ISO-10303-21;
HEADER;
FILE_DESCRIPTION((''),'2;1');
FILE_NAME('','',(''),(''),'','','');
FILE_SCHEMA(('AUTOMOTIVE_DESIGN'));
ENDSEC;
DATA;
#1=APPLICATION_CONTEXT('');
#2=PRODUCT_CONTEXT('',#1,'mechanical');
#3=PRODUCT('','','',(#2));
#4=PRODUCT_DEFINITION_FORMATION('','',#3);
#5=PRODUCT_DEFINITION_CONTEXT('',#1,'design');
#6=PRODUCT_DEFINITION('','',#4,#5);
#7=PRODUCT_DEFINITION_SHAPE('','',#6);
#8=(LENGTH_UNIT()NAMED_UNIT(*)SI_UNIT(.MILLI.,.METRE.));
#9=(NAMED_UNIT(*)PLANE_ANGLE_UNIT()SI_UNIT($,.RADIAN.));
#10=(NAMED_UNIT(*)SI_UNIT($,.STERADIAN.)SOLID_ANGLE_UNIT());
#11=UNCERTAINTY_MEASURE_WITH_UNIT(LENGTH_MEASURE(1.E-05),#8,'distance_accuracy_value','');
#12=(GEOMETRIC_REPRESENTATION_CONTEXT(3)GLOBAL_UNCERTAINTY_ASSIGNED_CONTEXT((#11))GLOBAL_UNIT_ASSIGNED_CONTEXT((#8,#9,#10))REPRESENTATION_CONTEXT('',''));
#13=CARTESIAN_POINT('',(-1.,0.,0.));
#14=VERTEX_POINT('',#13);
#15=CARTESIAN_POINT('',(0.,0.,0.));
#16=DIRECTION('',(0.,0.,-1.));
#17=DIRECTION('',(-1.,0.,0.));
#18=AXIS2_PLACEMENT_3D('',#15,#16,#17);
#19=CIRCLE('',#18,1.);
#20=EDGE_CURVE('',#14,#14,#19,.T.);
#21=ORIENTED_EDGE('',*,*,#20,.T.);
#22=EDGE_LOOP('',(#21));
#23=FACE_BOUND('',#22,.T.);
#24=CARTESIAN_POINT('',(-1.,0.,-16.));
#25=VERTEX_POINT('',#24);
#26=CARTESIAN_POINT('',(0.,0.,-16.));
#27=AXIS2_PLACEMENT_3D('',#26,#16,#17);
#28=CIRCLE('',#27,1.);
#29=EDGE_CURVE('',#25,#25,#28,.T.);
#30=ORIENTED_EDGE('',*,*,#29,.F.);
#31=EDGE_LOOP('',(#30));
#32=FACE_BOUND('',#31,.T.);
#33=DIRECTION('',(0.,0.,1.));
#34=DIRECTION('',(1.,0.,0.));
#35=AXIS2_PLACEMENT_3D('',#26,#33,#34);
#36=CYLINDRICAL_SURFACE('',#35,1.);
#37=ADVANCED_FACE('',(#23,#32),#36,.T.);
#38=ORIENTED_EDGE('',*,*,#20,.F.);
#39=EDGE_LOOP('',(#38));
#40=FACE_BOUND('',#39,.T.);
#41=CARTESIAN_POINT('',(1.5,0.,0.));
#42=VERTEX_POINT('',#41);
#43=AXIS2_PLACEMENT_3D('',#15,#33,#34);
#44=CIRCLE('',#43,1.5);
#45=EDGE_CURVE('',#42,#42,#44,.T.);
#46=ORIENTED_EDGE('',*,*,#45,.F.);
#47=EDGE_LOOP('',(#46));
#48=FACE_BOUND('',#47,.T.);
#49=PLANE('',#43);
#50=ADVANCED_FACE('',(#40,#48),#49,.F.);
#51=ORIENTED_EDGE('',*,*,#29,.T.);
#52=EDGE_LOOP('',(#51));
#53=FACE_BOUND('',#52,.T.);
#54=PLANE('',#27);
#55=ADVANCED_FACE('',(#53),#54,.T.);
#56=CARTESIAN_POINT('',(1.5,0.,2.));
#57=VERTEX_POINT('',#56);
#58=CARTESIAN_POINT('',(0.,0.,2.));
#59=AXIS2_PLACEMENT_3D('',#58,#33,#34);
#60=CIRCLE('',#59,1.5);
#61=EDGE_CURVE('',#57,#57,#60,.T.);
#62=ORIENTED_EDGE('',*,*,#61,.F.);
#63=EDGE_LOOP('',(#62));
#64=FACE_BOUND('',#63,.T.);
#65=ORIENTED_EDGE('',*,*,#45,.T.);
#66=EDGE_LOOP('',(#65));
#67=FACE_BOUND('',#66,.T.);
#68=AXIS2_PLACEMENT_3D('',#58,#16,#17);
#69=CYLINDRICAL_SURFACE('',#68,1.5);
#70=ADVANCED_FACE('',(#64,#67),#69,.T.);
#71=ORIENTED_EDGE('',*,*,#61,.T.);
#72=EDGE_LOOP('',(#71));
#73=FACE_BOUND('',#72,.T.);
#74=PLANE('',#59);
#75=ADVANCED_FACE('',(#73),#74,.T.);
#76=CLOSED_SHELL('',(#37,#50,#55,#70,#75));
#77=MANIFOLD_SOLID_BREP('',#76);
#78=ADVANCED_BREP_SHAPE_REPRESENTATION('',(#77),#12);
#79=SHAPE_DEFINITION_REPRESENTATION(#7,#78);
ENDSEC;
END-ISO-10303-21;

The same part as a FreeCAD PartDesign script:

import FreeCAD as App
import Part
import Sketcher

V = App.Vector

doc = App.newDocument("Part")
body = doc.addObject("PartDesign::Body", "Body")

# Sketch on XY plane
sketch1 = body.newObject("Sketcher::SketchObject", "Sketch")
sketch1.AttachmentSupport = (doc.getObject("XY_Plane"), [""])
sketch1.MapMode = "FlatFace"
sketch1.addGeometry(Part.Circle(V(0, 0, 0), V(0, 0, 1), 1.5), False)
sketch1.addConstraint(Sketcher.Constraint("Coincident", 0, 3, -1, 1))
sketch1.addConstraint(Sketcher.Constraint("Diameter", 0, 3.0))
pad1 = body.newObject("PartDesign::Pad", "Pad")
pad1.Profile = sketch1
pad1.Length = 2

# Sketch on XY plane
sketch2 = body.newObject("Sketcher::SketchObject", "Sketch001")
sketch2.AttachmentSupport = (doc.getObject("XY_Plane"), [""])
sketch2.MapMode = "FlatFace"
sketch2.addGeometry(Part.Circle(V(0, 0, 0), V(0, 0, 1), 1), False)
sketch2.addConstraint(Sketcher.Constraint("Coincident", 0, 3, -1, 1))
sketch2.addConstraint(Sketcher.Constraint("Diameter", 0, 2.0))
pad2 = body.newObject("PartDesign::Pad", "Pad001")
pad2.Profile = sketch2
pad2.Length = 16
pad2.Reversed = True

doc.recompute()
